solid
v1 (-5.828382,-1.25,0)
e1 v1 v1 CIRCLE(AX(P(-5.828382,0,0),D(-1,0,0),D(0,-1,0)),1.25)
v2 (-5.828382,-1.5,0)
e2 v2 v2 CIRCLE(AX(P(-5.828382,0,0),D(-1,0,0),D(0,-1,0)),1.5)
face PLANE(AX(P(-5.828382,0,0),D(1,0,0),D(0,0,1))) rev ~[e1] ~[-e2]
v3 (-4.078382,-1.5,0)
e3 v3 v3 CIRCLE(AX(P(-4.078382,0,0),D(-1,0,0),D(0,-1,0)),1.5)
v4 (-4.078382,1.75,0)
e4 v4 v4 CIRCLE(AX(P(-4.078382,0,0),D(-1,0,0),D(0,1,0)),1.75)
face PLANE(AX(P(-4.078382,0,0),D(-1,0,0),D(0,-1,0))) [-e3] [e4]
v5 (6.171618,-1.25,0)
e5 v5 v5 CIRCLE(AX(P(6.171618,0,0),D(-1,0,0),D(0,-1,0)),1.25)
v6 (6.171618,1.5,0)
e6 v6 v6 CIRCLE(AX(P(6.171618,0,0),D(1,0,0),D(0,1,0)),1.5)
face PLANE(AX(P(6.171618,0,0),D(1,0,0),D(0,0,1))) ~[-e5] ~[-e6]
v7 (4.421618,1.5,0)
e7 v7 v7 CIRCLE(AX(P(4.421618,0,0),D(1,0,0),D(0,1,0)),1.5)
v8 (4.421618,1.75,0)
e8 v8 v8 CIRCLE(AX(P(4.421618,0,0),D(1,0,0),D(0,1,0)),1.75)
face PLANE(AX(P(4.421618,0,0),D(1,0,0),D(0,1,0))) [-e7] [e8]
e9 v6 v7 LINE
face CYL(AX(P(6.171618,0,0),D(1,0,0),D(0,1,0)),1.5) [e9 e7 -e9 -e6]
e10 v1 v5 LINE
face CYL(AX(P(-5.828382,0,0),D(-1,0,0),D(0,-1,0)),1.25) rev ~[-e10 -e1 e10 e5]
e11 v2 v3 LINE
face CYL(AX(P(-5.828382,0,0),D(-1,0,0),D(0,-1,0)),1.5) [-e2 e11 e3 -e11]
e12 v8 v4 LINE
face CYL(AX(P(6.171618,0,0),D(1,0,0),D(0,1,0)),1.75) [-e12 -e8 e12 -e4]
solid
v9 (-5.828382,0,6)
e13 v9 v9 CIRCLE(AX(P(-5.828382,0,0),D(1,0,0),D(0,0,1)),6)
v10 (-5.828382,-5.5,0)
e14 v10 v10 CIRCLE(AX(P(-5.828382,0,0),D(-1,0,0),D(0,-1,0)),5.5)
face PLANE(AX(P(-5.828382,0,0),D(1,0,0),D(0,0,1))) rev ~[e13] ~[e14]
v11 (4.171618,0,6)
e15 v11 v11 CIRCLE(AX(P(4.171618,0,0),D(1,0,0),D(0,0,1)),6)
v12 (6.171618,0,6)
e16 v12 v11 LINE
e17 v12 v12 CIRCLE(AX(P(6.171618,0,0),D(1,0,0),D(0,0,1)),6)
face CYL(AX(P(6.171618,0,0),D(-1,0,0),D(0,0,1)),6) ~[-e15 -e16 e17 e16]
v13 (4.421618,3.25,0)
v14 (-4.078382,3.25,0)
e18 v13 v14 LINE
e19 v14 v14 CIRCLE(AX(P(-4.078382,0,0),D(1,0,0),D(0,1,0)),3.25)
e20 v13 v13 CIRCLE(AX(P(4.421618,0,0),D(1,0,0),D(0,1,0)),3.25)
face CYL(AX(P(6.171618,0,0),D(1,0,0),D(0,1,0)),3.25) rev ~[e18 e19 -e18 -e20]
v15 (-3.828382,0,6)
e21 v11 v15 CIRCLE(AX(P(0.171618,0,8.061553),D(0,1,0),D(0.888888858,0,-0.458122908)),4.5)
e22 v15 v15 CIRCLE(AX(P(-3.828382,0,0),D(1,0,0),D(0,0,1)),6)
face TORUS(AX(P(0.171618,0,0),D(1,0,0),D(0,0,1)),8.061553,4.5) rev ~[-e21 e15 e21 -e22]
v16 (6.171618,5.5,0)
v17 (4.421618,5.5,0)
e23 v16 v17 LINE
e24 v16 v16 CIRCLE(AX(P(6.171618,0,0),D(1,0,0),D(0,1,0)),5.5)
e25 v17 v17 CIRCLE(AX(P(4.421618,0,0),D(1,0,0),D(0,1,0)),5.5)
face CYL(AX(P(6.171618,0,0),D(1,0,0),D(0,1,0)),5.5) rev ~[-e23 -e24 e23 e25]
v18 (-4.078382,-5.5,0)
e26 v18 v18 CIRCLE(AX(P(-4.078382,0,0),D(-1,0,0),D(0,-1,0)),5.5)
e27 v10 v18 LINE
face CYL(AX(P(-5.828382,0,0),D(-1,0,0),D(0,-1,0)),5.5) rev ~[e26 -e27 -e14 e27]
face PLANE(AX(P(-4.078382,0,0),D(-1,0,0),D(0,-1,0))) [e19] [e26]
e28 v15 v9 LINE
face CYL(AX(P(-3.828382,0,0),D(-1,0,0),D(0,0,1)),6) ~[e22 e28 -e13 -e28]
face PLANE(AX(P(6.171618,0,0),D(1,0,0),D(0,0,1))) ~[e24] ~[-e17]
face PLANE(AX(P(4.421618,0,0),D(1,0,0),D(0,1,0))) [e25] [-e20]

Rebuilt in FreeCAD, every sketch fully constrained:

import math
import FreeCAD as App
import Part
import Sketcher

doc = App.newDocument("Part")
body = doc.addObject("PartDesign::Body", "Body")
body.AllowCompound = True

sketch1 = body.newObject("Sketcher::SketchObject", "Sketch")
sketch1.AttachmentSupport = (doc.getObject("XZ_Plane"), [""])
sketch1.MapMode = "FlatFace"
sketch1.addGeometry([
    Part.LineSegment(App.Vector(-5.8, 6, 0), App.Vector(-5.8, 0, 0)),
    Part.LineSegment(App.Vector(-5.8, 0, 0), App.Vector(6.2, 0, 0)),
    Part.LineSegment(App.Vector(6.2, 0, 0), App.Vector(6.2, 6, 0)),
    Part.LineSegment(App.Vector(6.2, 6, 0), App.Vector(4.2, 6, 0)),
    Part.ArcOfCircle(Part.Circle(App.Vector(0.2, 8.1, 0), App.Vector(0, 0, 1), 4.5), math.radians(-153), math.radians(-27)),
    Part.LineSegment(App.Vector(-3.8, 6, 0), App.Vector(-5.8, 6, 0)),
], False)
sketch1.addConstraint([
    Sketcher.Constraint("Coincident", 0, 2, 1, 1),
    Sketcher.Constraint("Coincident", 1, 2, 2, 1),
    Sketcher.Constraint("Coincident", 2, 2, 3, 1),
    Sketcher.Constraint("Coincident", 3, 2, 4, 2),
    Sketcher.Constraint("Coincident", 4, 1, 5, 1),
    Sketcher.Constraint("Coincident", 5, 2, 0, 1),
    Sketcher.Constraint("Vertical", 0),
    Sketcher.Constraint("Horizontal", 1),
    Sketcher.Constraint("Vertical", 2),
    Sketcher.Constraint("Horizontal", 3),
    Sketcher.Constraint("Horizontal", 5),
    Sketcher.Constraint("PointOnObject", 0, 2, -1),
    Sketcher.Constraint("Horizontal", 3, 2, 4, 1),
    Sketcher.Constraint("Equal", 3, 5),
    Sketcher.Constraint("Radius", 4, 4.5),
    Sketcher.Constraint("DistanceX", 1, 1, 1, 2, 12.0),
    Sketcher.Constraint("DistanceX", 3, 2, 3, 1, 2.0),
    Sketcher.Constraint("DistanceY", 0, 2, 0, 1, 6.0),
    Sketcher.Constraint("DistanceX", 4, 1, -1, 1, 3.828382),
])
revolution = body.newObject("PartDesign::Revolution", "Revolution")
revolution.Profile = sketch1
revolution.ReferenceAxis = (sketch1, ["H_Axis"])
revolution.Angle = 360

sketch2 = body.newObject("Sketcher::SketchObject", "Sketch001")
sketch2.AttachmentSupport = (doc.getObject("YZ_Plane"), [""])
sketch2.MapMode = "FlatFace"
sketch2.AttachmentOffset = App.Placement(App.Vector(0, 0, -5.828382), App.Rotation())
sketch2.addGeometry(Part.Circle(App.Vector(0, 0, 0), App.Vector(0, 0, 1), 1.2), False)
sketch2.addConstraint([
    Sketcher.Constraint("Coincident", 0, 3, -1, 1),
    Sketcher.Constraint("Diameter", 0, 2.5),
])
pocket1 = body.newObject("PartDesign::Pocket", "Pocket")
pocket1.Profile = sketch2
pocket1.Type = "ThroughAll"
pocket1.Reversed = True

sketch3 = body.newObject("Sketcher::SketchObject", "Sketch002")
sketch3.AttachmentSupport = (doc.getObject("YZ_Plane"), [""])
sketch3.MapMode = "FlatFace"
sketch3.AttachmentOffset = App.Placement(App.Vector(0, 0, 6.171618), App.Rotation())
sketch3.addGeometry([
    Part.Circle(App.Vector(0, 0, 0), App.Vector(0, 0, 1), 5.5),
    Part.Circle(App.Vector(0, 0, 0), App.Vector(0, 0, 1), 3.2),
], False)
sketch3.addConstraint([
    Sketcher.Constraint("Coincident", 0, 3, -1, 1),
    Sketcher.Constraint("Coincident", 1, 3, -1, 1),
    Sketcher.Constraint("Diameter", 0, 11.0),
    Sketcher.Constraint("Diameter", 1, 6.5),
])
pocket2 = body.newObject("PartDesign::Pocket", "Pocket001")
pocket2.Profile = sketch3
pocket2.Length = 1.75

sketch4 = body.newObject("Sketcher::SketchObject", "Sketch003")
sketch4.AttachmentSupport = (doc.getObject("YZ_Plane"), [""])
sketch4.MapMode = "FlatFace"
sketch4.AttachmentOffset = App.Placement(App.Vector(0, 0, -5.828382), App.Rotation())
sketch4.addGeometry([
    Part.Circle(App.Vector(0, 0, 0), App.Vector(0, 0, 1), 5.5),
    Part.Circle(App.Vector(0, 0, 0), App.Vector(0, 0, 1), 3.2),
], False)
sketch4.addConstraint([
    Sketcher.Constraint("Coincident", 0, 3, -1, 1),
    Sketcher.Constraint("Coincident", 1, 3, -1, 1),
    Sketcher.Constraint("Diameter", 0, 11.0),
    Sketcher.Constraint("Diameter", 1, 6.5),
])
pocket3 = body.newObject("PartDesign::Pocket", "Pocket002")
pocket3.Profile = sketch4
pocket3.Length = 1.75
pocket3.Reversed = True

sketch5 = body.newObject("Sketcher::SketchObject", "Sketch004")
sketch5.AttachmentSupport = (doc.getObject("YZ_Plane"), [""])
sketch5.MapMode = "FlatFace"
sketch5.AttachmentOffset = App.Placement(App.Vector(0, 0, 6.171618), App.Rotation())
sketch5.addGeometry([
    Part.Circle(App.Vector(0, 0, 0), App.Vector(0, 0, 1), 3.2),
    Part.Circle(App.Vector(0, 0, 0), App.Vector(0, 0, 1), 1.8),
], False)
sketch5.addConstraint([
    Sketcher.Constraint("Coincident", 0, 3, -1, 1),
    Sketcher.Constraint("Coincident", 1, 3, -1, 1),
    Sketcher.Constraint("Diameter", 0, 6.5),
    Sketcher.Constraint("Diameter", 1, 3.5),
])
pocket4 = body.newObject("PartDesign::Pocket", "Pocket003")
pocket4.Profile = sketch5
pocket4.Type = "ThroughAll"

sketch6 = body.newObject("Sketcher::SketchObject", "Sketch005")
sketch6.AttachmentSupport = (doc.getObject("YZ_Plane"), [""])
sketch6.MapMode = "FlatFace"
sketch6.AttachmentOffset = App.Placement(App.Vector(0, 0, 6.171618), App.Rotation())
sketch6.addGeometry([
    Part.Circle(App.Vector(0, 0, 0), App.Vector(0, 0, 1), 1.8),
    Part.Circle(App.Vector(0, 0, 0), App.Vector(0, 0, 1), 1.5),
], False)
sketch6.addConstraint([
    Sketcher.Constraint("Coincident", 0, 3, -1, 1),
    Sketcher.Constraint("Coincident", 1, 3, -1, 1),
    Sketcher.Constraint("Diameter", 1, 3.0),
    Sketcher.Constraint("Diameter", 0, 3.5),
])
pocket5 = body.newObject("PartDesign::Pocket", "Pocket004")
pocket5.Profile = sketch6
pocket5.Length = 1.75

sketch7 = body.newObject("Sketcher::SketchObject", "Sketch006")
sketch7.AttachmentSupport = (doc.getObject("YZ_Plane"), [""])
sketch7.MapMode = "FlatFace"
sketch7.AttachmentOffset = App.Placement(App.Vector(0, 0, -5.828382), App.Rotation())
sketch7.addGeometry([
    Part.Circle(App.Vector(0, 0, 0), App.Vector(0, 0, 1), 1.8),
    Part.Circle(App.Vector(0, 0, 0), App.Vector(0, 0, 1), 1.5),
], False)
sketch7.addConstraint([
    Sketcher.Constraint("Coincident", 0, 3, -1, 1),
    Sketcher.Constraint("Coincident", 1, 3, -1, 1),
    Sketcher.Constraint("Diameter", 1, 3.0),
    Sketcher.Constraint("Diameter", 0, 3.5),
])
pocket6 = body.newObject("PartDesign::Pocket", "Pocket005")
pocket6.Profile = sketch7
pocket6.Length = 1.75
pocket6.Reversed = True

doc.recompute()
